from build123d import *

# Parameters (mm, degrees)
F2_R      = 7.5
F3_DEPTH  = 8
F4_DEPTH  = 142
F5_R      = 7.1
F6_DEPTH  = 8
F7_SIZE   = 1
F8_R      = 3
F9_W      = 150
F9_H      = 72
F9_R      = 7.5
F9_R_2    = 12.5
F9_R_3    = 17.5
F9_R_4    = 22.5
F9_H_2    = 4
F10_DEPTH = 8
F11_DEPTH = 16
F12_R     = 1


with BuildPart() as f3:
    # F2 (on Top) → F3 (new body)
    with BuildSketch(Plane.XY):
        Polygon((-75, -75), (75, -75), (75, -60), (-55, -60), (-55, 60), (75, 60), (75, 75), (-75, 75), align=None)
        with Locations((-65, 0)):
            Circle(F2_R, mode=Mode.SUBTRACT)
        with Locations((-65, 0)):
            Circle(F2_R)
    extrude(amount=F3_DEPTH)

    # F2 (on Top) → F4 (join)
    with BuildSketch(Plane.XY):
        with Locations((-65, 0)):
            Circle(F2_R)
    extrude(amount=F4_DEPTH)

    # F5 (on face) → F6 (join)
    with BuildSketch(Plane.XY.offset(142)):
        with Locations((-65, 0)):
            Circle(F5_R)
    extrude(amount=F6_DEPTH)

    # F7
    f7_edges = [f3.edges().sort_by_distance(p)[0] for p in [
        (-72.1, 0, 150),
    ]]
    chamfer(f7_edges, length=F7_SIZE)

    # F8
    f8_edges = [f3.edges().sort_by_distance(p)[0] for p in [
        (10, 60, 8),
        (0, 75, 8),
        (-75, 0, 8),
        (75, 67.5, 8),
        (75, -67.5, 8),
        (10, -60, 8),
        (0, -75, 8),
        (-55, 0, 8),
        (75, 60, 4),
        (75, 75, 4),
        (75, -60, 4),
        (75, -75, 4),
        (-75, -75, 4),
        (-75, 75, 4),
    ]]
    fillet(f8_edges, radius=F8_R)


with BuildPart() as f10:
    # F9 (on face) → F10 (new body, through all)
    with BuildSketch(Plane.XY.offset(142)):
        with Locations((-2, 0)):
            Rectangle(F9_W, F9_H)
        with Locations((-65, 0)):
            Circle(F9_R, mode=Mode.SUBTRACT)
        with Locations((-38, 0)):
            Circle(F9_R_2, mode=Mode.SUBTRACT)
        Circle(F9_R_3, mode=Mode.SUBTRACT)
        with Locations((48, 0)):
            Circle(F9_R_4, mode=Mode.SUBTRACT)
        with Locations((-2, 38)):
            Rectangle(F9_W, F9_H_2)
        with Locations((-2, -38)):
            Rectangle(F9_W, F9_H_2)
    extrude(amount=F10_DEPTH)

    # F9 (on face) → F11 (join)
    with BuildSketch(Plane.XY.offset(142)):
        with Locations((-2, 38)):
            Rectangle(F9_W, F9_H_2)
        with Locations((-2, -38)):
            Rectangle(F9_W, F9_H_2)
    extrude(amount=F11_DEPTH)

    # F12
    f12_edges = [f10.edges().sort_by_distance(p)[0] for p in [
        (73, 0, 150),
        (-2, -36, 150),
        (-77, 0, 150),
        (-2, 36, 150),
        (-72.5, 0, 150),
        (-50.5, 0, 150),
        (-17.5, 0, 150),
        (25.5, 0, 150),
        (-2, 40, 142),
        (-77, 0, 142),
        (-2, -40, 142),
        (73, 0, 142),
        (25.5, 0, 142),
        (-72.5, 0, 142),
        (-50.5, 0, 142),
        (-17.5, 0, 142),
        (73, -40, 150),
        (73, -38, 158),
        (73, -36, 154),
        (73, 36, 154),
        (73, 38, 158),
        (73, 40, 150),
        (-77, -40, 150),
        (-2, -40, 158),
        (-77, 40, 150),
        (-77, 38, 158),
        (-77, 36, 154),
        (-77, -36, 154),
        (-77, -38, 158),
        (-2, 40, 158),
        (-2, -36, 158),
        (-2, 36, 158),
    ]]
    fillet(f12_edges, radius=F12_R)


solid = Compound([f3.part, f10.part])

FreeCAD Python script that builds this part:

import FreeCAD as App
import Part
import Sketcher
from FreeCAD import Vector
Q = App.Units.Quantity


def edges_at(feature, points):
    """Names of the edges that pass closest to the given points."""
    edges = feature.Shape.Edges
    near = lambda p: min(range(len(edges)), key=lambda i: edges[i].distToShape(Part.Vertex(*p))[0])
    return sorted({f"Edge{near(p) + 1}" for p in points})


def add_polygon(sketch, points):
    """Adds a closed chain of lines whose ends are joined by coincident constraints."""
    first, n = sketch.GeometryCount, len(points)
    for a, b in zip(points, points[1:] + points[:1]):
        sketch.addGeometry(Part.LineSegment(App.Vector(*a, 0), App.Vector(*b, 0)), False)
    for i in range(n):
        sketch.addConstraint(Sketcher.Constraint("Coincident", first + i, 2, first + (i + 1) % n, 1))

doc = App.newDocument("Part")
body = doc.addObject("PartDesign::Body", "Body")

# Sketch on XY plane
sketch1 = body.newObject("Sketcher::SketchObject", "Sketch")
sketch1.AttachmentSupport = (doc.getObject("XY_Plane"), [""])
sketch1.MapMode = "FlatFace"
add_polygon(sketch1, [(-75, -75), (75, -75), (75, -60), (-55, -60), (-55, 60), (75, 60), (75, 75), (-75, 75)])  # lines 0-7
sketch1.addConstraint(Sketcher.Constraint("Horizontal", 0))
sketch1.addConstraint(Sketcher.Constraint("Vertical", 1))
sketch1.addConstraint(Sketcher.Constraint("Horizontal", 2))
sketch1.addConstraint(Sketcher.Constraint("Vertical", 3))
sketch1.addConstraint(Sketcher.Constraint("Horizontal", 4))
sketch1.addConstraint(Sketcher.Constraint("Vertical", 5))
sketch1.addConstraint(Sketcher.Constraint("Horizontal", 6))
sketch1.addConstraint(Sketcher.Constraint("Vertical", 7))
sketch1.addConstraint(Sketcher.Constraint("Symmetric", 0, 2, 6, 2, -1, 1))
sketch1.addConstraint(Sketcher.Constraint("Symmetric", 1, 2, 4, 2, -1))
sketch1.addConstraint(Sketcher.Constraint("Equal", 6, 7))
sketch1.addConstraint(Sketcher.Constraint("DistanceX", 0, 1, 0, 2, Q("150 mm")))
sketch1.addConstraint(Sketcher.Constraint("DistanceX", 2, 2, 2, 1, Q("130 mm")))
sketch1.addConstraint(Sketcher.Constraint("DistanceY", 1, 1, 1, 2, Q("15 mm")))
pad1 = body.newObject("PartDesign::Pad", "Pad")
pad1.Profile = sketch1
pad1.Length = 8

# Sketch on XY plane
sketch2 = body.newObject("Sketcher::SketchObject", "Sketch001")
sketch2.AttachmentSupport = (doc.getObject("XY_Plane"), [""])
sketch2.MapMode = "FlatFace"
sketch2.addGeometry(Part.Circle(Vector(-65, 0, 0), Vector(0, 0, 1), 8), False)
sketch2.addConstraint(Sketcher.Constraint("PointOnObject", 0, 3, -1))
sketch2.addConstraint(Sketcher.Constraint("Diameter", 0, Q("15 mm")))
sketch2.addConstraint(Sketcher.Constraint("DistanceX", 0, 3, -1, 1, Q("65 mm")))
pad2 = body.newObject("PartDesign::Pad", "Pad001")
pad2.Profile = sketch2
pad2.Length = 142

# Sketch on XY plane
sketch3 = body.newObject("Sketcher::SketchObject", "Sketch002")
sketch3.AttachmentSupport = (doc.getObject("XY_Plane"), [""])
sketch3.MapMode = "FlatFace"
sketch3.AttachmentOffset = App.Placement(Vector(0, 0, 142), App.Rotation())
sketch3.addGeometry(Part.Circle(Vector(-65, 0, 0), Vector(0, 0, 1), 7), False)
sketch3.addConstraint(Sketcher.Constraint("PointOnObject", 0, 3, -1))
sketch3.addConstraint(Sketcher.Constraint("Diameter", 0, Q("14.2 mm")))
sketch3.addConstraint(Sketcher.Constraint("DistanceX", 0, 3, -1, 1, Q("65 mm")))
pad3 = body.newObject("PartDesign::Pad", "Pad002")
pad3.Profile = sketch3
pad3.Length = 8
doc.recompute()

chamfer = body.newObject("PartDesign::Chamfer", "Chamfer")
chamfer.Base = (pad3, edges_at(pad3, [(-72.1, 0, 150)]))
chamfer.Size = 1
doc.recompute()

fillet = body.newObject("PartDesign::Fillet", "Fillet")
fillet.Base = (chamfer, edges_at(chamfer, [
    (10, 60, 8),
    (0, 75, 8),
    (-75, 0, 8),
    (75, 67.5, 8),
    (75, -67.5, 8),
    (10, -60, 8),
    (0, -75, 8),
    (-55, 0, 8),
    (75, 60, 4),
    (75, 75, 4),
    (75, -60, 4),
    (75, -75, 4),
    (-75, -75, 4),
    (-75, 75, 4),
]))
fillet.Radius = 3
body2 = doc.addObject("PartDesign::Body", "Body001")

# Sketch on XY plane
sketch4 = body2.newObject("Sketcher::SketchObject", "Sketch003")
sketch4.AttachmentSupport = (doc.getObject("XY_Plane001"), [""])
sketch4.MapMode = "FlatFace"
sketch4.AttachmentOffset = App.Placement(Vector(0, 0, 142), App.Rotation())
add_polygon(sketch4, [(73, 40), (-77, 40), (-77, -40), (73, -40)])  # lines 0-3
sketch4.addGeometry(Part.Circle(Vector(-65, 0, 0), Vector(0, 0, 1), 8), False)  # 4
sketch4.addGeometry(Part.Circle(Vector(-38, 0, 0), Vector(0, 0, 1), 12), False)  # 5
sketch4.addGeometry(Part.Circle(Vector(0, 0, 0), Vector(0, 0, 1), 18), False)  # 6
sketch4.addGeometry(Part.Circle(Vector(48, 0, 0), Vector(0, 0, 1), 22), False)  # 7
sketch4.addConstraint(Sketcher.Constraint("Horizontal", 0))
sketch4.addConstraint(Sketcher.Constraint("Vertical", 1))
sketch4.addConstraint(Sketcher.Constraint("Horizontal", 2))
sketch4.addConstraint(Sketcher.Constraint("Vertical", 3))
sketch4.addConstraint(Sketcher.Constraint("Coincident", 6, 3, -1, 1))
sketch4.addConstraint(Sketcher.Constraint("PointOnObject", 4, 3, -1))
sketch4.addConstraint(Sketcher.Constraint("PointOnObject", 5, 3, -1))
sketch4.addConstraint(Sketcher.Constraint("PointOnObject", 7, 3, -1))
sketch4.addConstraint(Sketcher.Constraint("Diameter", 4, Q("15 mm")))
sketch4.addConstraint(Sketcher.Constraint("Diameter", 5, Q("25 mm")))
sketch4.addConstraint(Sketcher.Constraint("Diameter", 6, Q("35 mm")))
sketch4.addConstraint(Sketcher.Constraint("Diameter", 7, Q("45 mm")))
sketch4.addConstraint(Sketcher.Constraint("DistanceX", 0, 2, 0, 1, Q("150 mm")))
sketch4.addConstraint(Sketcher.Constraint("DistanceY", 1, 2, 1, 1, Q("80 mm")))
sketch4.addConstraint(Sketcher.Constraint("DistanceX", 4, 3, -1, 1, Q("65 mm")))
sketch4.addConstraint(Sketcher.Constraint("DistanceX", 5, 3, -1, 1, Q("38 mm")))
sketch4.addConstraint(Sketcher.Constraint("DistanceX", -1, 1, 7, 3, Q("48 mm")))
sketch4.addConstraint(Sketcher.Constraint("DistanceX", 0, 2, -1, 1, Q("77 mm")))
sketch4.addConstraint(Sketcher.Constraint("DistanceY", -1, 1, 0, 2, Q("40 mm")))
pad4 = body2.newObject("PartDesign::Pad", "Pad003")
pad4.Profile = sketch4
pad4.Length = 8

# Sketch on XY plane
sketch5 = body2.newObject("Sketcher::SketchObject", "Sketch004")
sketch5.AttachmentSupport = (doc.getObject("XY_Plane001"), [""])
sketch5.MapMode = "FlatFace"
sketch5.AttachmentOffset = App.Placement(Vector(0, 0, 142), App.Rotation())
add_polygon(sketch5, [(-77, 40), (-77, 36), (73, 36), (73, 40)])  # lines 0-3
add_polygon(sketch5, [(-77, -36), (-77, -40), (73, -40), (73, -36)])  # lines 4-7
sketch5.addConstraint(Sketcher.Constraint("Vertical", 0))
sketch5.addConstraint(Sketcher.Constraint("Horizontal", 1))
sketch5.addConstraint(Sketcher.Constraint("Vertical", 2))
sketch5.addConstraint(Sketcher.Constraint("Horizontal", 3))
sketch5.addConstraint(Sketcher.Constraint("Vertical", 4))
sketch5.addConstraint(Sketcher.Constraint("Horizontal", 5))
sketch5.addConstraint(Sketcher.Constraint("Vertical", 6))
sketch5.addConstraint(Sketcher.Constraint("Horizontal", 7))
sketch5.addConstraint(Sketcher.Constraint("Symmetric", 3, 2, 4, 2, -1))
sketch5.addConstraint(Sketcher.Constraint("Symmetric", 1, 2, 6, 2, -1))
sketch5.addConstraint(Sketcher.Constraint("DistanceX", 1, 1, 1, 2, Q("150 mm")))
sketch5.addConstraint(Sketcher.Constraint("DistanceY", 0, 2, 0, 1, Q("4 mm")))
sketch5.addConstraint(Sketcher.Constraint("DistanceX", 0, 2, -1, 1, Q("77 mm")))
sketch5.addConstraint(Sketcher.Constraint("DistanceY", -1, 1, 0, 2, Q("36 mm")))
pad5 = body2.newObject("PartDesign::Pad", "Pad004")
pad5.Profile = sketch5
pad5.Length = 16
doc.recompute()

fillet2 = body2.newObject("PartDesign::Fillet", "Fillet001")
fillet2.Base = (pad5, ["Edge1"])
fillet2.UseAllEdges = True
fillet2.Radius = 1

doc.recompute()
